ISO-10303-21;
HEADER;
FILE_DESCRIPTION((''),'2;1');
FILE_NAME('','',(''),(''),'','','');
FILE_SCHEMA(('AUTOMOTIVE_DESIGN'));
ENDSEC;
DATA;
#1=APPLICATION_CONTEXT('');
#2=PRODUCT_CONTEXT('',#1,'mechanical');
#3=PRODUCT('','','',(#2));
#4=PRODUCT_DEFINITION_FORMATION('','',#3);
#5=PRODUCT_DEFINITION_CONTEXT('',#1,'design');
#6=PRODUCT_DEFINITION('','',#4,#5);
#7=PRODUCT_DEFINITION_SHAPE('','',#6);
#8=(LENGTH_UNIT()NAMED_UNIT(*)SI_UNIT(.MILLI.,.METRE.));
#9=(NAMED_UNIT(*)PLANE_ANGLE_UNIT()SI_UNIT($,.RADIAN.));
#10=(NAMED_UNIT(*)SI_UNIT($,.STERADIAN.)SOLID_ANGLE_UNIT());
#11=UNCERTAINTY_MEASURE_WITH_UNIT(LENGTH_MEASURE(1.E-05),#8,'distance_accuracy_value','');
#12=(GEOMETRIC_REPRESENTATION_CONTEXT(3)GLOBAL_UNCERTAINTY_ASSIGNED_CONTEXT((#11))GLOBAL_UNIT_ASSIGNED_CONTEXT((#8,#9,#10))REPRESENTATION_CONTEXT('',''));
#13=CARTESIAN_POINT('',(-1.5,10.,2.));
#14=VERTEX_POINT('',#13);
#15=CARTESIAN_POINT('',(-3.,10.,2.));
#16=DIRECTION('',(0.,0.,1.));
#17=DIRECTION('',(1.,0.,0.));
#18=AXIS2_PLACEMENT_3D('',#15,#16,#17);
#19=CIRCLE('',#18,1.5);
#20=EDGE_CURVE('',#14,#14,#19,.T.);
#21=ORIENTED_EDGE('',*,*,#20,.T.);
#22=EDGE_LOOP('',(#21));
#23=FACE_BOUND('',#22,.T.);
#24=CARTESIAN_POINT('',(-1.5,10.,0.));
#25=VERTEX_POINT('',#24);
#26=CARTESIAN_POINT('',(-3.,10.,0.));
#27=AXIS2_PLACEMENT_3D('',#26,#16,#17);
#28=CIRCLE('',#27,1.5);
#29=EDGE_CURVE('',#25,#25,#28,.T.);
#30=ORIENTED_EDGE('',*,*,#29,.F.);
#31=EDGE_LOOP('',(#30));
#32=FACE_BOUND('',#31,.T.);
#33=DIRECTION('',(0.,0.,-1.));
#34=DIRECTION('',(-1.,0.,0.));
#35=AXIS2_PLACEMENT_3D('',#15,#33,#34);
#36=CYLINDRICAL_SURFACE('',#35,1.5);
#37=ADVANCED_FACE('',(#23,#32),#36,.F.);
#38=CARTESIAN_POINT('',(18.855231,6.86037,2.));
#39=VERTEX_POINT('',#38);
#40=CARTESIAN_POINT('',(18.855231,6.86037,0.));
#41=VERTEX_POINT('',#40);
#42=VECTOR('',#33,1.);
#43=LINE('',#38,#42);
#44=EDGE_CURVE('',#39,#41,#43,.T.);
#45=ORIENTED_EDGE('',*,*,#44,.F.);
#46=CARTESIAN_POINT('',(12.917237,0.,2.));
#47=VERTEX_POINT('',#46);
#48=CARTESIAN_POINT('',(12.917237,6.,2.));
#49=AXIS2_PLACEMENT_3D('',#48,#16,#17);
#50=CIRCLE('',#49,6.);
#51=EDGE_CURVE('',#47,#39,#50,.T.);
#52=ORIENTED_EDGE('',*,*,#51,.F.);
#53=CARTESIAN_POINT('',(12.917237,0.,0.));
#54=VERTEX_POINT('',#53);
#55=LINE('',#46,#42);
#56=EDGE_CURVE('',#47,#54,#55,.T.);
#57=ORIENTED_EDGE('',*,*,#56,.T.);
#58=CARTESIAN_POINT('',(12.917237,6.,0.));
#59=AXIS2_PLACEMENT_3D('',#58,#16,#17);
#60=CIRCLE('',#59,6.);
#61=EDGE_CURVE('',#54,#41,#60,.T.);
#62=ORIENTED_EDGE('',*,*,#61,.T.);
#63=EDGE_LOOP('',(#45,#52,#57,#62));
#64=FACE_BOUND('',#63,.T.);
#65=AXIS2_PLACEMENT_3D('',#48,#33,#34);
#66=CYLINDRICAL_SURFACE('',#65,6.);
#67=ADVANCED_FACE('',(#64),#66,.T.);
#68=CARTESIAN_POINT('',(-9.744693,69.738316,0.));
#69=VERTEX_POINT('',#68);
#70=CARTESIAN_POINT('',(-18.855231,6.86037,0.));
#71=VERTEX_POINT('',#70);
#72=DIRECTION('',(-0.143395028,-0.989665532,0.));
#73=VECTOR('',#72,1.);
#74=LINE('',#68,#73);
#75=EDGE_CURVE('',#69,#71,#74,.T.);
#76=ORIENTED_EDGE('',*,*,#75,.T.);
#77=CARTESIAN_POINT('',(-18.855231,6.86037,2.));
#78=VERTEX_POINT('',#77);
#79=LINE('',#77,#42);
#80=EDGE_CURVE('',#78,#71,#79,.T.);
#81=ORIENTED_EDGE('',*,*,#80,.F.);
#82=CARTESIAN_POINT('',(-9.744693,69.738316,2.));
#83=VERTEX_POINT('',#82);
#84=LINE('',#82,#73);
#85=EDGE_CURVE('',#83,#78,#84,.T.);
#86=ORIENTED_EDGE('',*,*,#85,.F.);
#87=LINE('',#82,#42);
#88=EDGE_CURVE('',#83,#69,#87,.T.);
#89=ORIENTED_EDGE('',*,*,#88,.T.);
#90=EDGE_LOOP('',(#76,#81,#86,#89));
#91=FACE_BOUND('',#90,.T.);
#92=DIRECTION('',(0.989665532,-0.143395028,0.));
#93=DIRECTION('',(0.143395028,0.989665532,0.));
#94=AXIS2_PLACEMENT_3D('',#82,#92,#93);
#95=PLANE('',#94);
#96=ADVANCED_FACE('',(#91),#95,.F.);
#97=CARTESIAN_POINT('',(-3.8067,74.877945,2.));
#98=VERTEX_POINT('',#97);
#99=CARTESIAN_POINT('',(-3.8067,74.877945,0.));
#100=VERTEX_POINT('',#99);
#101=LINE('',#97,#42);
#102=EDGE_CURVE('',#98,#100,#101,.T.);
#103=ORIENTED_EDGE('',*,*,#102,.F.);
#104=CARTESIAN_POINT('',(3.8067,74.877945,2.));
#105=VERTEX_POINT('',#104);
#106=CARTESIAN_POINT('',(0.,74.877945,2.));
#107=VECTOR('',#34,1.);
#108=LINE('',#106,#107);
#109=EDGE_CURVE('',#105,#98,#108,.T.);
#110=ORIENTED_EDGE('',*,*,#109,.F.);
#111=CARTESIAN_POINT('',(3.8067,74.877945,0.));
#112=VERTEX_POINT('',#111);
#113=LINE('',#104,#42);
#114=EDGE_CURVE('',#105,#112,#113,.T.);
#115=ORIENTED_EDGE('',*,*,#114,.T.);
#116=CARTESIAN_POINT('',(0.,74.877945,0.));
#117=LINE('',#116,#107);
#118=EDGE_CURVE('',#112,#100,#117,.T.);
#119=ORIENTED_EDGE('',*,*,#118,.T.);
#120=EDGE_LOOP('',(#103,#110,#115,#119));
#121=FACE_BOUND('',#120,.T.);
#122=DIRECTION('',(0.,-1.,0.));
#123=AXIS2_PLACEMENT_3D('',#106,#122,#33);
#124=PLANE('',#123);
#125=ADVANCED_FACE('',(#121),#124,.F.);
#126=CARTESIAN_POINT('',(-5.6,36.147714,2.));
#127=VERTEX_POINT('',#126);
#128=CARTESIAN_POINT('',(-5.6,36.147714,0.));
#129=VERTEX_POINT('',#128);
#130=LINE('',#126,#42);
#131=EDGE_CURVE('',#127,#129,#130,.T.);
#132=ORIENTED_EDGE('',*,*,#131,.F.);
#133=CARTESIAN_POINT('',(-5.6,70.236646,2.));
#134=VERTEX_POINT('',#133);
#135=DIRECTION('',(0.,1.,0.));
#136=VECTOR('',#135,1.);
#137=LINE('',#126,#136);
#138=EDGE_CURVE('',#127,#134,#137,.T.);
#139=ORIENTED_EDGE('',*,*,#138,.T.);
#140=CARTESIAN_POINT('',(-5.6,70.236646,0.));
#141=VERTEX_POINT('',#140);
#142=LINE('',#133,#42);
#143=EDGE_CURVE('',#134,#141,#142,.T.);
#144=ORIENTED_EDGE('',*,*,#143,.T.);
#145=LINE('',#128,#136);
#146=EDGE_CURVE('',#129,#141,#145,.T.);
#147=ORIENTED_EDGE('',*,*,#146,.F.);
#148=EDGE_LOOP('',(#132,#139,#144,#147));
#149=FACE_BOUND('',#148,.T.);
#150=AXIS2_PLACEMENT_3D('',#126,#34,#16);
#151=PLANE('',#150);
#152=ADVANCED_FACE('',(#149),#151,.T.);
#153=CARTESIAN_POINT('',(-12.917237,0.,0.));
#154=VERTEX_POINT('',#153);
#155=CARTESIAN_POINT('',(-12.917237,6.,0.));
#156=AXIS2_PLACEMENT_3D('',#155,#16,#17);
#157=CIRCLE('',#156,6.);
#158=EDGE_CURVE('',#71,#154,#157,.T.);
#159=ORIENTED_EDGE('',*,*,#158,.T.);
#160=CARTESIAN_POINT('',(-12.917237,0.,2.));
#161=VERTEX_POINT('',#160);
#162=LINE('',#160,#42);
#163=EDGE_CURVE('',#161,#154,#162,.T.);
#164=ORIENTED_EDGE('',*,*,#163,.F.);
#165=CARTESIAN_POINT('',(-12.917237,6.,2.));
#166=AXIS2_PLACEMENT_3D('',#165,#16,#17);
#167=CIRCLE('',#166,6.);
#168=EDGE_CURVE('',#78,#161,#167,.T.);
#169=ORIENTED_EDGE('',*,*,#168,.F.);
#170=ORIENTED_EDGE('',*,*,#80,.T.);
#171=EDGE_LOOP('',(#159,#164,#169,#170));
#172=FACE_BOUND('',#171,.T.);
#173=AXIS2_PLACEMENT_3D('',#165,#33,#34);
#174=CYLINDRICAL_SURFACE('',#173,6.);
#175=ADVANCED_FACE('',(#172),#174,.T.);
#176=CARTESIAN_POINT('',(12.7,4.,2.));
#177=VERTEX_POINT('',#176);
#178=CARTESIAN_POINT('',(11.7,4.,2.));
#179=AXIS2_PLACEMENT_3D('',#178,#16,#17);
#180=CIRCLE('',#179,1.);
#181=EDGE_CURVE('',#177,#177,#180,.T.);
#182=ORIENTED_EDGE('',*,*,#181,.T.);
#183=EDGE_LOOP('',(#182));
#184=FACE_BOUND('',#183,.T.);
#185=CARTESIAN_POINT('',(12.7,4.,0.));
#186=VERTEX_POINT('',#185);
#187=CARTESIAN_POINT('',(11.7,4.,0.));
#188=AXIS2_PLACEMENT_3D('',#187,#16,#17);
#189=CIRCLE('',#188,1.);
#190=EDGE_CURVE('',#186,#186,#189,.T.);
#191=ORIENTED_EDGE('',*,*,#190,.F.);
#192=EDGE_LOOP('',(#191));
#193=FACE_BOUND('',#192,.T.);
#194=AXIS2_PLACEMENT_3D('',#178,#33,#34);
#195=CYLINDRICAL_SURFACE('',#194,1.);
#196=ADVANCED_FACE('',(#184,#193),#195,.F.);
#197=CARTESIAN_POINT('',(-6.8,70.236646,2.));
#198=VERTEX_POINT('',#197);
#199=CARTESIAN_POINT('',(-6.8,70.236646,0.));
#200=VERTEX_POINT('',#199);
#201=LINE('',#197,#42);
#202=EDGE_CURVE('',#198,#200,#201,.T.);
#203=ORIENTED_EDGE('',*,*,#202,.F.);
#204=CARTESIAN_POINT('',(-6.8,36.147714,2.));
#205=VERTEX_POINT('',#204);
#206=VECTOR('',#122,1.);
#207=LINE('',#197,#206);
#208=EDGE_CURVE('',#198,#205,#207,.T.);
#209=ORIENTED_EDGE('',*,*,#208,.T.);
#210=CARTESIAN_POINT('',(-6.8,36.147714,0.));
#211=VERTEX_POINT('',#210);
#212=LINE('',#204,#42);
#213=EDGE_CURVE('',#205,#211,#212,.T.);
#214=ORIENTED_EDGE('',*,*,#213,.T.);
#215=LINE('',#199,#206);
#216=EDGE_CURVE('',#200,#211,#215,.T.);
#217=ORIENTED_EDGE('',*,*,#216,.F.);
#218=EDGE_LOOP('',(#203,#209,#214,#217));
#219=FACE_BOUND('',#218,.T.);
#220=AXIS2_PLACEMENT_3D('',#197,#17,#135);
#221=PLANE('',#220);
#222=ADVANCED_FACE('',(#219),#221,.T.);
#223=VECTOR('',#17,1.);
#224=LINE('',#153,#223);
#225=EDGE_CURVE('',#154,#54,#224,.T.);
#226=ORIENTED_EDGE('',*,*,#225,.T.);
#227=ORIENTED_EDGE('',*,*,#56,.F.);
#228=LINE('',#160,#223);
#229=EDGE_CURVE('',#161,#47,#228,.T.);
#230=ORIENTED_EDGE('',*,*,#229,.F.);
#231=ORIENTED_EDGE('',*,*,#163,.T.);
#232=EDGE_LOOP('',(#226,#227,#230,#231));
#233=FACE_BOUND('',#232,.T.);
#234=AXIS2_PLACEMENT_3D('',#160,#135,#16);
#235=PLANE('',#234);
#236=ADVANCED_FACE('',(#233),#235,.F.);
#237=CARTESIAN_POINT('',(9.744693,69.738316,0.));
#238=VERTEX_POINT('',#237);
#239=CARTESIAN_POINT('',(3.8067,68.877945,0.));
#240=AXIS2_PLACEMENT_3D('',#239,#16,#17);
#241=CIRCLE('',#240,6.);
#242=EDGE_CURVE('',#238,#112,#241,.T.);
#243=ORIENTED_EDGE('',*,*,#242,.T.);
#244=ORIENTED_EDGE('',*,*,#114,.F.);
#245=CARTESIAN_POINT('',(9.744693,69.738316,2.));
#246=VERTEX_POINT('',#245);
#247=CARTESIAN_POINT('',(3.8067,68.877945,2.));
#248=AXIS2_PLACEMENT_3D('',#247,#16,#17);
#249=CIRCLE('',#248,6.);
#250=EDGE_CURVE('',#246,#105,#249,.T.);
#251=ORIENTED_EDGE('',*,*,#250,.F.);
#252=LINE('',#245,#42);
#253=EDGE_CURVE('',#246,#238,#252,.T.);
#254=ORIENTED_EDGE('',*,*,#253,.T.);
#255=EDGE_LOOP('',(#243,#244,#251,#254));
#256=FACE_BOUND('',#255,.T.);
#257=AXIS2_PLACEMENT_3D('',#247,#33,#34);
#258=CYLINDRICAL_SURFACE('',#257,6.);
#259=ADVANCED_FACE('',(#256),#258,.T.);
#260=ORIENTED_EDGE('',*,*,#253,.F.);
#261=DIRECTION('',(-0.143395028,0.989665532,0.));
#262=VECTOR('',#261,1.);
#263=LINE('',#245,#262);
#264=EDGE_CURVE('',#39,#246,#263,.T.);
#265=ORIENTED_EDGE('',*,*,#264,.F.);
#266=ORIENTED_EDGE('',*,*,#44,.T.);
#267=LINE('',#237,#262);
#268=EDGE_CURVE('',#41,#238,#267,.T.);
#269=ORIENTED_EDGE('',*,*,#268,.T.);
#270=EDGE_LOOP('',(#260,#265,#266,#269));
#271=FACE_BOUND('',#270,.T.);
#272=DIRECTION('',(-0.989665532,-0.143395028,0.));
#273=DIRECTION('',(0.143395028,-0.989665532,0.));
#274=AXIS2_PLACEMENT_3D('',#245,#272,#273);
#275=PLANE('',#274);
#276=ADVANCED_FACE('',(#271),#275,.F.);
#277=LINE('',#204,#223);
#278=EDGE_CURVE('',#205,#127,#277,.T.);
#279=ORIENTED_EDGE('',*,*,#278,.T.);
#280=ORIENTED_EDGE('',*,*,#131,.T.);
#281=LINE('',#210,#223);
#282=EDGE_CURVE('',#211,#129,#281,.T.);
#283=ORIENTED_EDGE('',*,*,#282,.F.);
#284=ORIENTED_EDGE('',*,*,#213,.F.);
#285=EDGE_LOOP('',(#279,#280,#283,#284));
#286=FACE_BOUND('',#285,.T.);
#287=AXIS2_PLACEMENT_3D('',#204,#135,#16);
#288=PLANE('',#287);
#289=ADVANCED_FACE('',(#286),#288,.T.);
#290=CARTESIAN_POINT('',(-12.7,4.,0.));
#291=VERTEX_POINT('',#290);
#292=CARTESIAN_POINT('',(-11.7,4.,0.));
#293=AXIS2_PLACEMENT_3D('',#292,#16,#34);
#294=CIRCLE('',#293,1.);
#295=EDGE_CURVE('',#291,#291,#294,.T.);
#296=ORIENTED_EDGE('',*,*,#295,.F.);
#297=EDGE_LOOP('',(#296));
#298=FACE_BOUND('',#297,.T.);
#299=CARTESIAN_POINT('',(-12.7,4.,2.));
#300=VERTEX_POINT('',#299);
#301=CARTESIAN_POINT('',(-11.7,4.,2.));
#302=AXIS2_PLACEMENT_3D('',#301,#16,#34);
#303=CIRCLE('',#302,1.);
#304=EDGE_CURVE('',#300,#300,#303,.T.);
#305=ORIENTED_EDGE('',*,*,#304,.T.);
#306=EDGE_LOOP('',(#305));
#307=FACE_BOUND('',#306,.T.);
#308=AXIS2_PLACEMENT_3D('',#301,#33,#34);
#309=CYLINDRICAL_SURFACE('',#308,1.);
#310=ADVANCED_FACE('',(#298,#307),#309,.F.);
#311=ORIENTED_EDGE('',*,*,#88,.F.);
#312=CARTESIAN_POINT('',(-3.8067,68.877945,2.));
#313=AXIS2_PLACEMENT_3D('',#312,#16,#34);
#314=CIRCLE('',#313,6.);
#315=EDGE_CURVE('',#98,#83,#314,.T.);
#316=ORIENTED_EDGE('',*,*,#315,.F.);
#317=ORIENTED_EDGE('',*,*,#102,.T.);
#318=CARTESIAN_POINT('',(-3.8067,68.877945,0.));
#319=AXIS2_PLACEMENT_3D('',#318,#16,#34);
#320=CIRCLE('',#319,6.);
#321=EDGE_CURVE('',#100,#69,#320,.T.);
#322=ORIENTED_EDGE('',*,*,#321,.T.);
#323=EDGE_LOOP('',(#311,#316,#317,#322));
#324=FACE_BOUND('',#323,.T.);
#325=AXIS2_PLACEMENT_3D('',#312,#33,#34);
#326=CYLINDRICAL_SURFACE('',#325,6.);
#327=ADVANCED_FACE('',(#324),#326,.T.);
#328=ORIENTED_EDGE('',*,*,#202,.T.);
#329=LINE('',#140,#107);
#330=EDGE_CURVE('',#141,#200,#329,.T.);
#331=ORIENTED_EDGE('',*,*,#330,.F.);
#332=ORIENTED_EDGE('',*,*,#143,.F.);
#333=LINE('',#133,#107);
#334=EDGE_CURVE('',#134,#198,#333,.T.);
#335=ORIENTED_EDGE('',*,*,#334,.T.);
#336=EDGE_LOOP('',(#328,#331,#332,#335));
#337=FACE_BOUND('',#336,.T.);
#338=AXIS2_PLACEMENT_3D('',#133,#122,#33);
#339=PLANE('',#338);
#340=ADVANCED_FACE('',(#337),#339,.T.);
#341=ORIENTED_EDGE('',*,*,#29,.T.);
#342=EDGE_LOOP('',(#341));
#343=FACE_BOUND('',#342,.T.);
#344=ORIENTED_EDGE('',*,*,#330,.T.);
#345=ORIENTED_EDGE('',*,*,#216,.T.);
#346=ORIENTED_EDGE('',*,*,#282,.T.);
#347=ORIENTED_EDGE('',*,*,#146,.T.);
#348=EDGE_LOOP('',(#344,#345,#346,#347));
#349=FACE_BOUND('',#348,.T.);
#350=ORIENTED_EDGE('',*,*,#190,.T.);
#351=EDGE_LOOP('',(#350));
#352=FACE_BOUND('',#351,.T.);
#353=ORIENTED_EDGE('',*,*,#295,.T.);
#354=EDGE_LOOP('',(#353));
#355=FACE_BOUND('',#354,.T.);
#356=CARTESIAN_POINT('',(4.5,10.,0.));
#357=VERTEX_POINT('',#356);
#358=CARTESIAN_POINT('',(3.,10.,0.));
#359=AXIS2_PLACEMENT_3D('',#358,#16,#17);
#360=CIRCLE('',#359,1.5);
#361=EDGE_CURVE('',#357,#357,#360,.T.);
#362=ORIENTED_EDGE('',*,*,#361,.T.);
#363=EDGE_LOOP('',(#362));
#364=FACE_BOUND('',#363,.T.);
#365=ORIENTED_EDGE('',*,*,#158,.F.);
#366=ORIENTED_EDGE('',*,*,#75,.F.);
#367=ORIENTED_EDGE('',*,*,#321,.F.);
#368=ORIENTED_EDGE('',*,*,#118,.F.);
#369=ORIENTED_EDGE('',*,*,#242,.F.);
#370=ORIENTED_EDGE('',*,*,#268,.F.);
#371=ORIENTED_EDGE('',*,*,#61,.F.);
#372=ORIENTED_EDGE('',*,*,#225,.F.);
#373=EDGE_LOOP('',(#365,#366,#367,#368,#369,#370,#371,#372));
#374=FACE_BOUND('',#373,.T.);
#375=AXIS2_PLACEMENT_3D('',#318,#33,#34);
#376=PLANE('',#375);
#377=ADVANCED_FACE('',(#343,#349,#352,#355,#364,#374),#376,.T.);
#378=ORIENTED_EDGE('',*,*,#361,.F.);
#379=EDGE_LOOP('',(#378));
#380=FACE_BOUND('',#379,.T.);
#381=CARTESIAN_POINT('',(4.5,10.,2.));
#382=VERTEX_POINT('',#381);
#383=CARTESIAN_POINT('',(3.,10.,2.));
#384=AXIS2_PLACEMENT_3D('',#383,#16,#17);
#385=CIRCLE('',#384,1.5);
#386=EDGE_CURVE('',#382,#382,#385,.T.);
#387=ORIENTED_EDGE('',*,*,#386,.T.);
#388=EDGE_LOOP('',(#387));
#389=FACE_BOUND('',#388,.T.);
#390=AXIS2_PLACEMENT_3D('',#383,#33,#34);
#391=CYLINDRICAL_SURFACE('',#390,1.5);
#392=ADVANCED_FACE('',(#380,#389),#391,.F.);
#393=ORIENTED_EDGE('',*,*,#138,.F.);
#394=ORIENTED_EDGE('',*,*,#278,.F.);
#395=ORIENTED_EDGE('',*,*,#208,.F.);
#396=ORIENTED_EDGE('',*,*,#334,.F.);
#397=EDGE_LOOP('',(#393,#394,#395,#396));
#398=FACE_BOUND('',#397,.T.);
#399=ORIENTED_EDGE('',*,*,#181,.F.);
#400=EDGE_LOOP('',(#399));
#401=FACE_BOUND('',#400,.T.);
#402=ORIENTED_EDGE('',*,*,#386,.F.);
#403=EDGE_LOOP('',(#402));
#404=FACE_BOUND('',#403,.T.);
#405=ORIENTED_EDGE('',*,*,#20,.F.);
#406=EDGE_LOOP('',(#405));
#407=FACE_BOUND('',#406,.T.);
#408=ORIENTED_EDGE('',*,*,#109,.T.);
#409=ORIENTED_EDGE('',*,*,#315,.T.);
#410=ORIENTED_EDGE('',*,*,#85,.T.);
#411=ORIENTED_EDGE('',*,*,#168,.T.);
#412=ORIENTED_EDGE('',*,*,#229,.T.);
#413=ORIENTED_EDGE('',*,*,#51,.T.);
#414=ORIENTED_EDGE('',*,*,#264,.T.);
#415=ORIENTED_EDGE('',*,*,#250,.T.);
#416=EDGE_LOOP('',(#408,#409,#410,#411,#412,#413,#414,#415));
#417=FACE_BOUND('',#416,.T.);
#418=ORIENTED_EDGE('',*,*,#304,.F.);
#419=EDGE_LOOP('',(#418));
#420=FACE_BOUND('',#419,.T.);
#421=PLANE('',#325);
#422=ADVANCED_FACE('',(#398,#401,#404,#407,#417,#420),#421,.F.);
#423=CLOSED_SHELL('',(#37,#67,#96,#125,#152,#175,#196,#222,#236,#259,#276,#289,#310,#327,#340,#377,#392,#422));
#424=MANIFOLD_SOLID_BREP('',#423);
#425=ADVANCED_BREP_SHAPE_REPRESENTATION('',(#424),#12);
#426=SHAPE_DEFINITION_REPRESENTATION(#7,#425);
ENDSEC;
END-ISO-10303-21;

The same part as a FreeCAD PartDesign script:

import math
import FreeCAD as App
import Part
import Sketcher

V = App.Vector

doc = App.newDocument("Part")
body = doc.addObject("PartDesign::Body", "Body")

sketch1 = body.newObject("Sketcher::SketchObject", "Sketch")
sketch1.AttachmentSupport = (doc.getObject("XY_Plane"), [""])
sketch1.MapMode = "FlatFace"
sketch1.addGeometry(Part.LineSegment(V(-12.917237, 0, 0), V(12.917237, 0, 0)), False)
sketch1.addGeometry(Part.ArcOfCircle(Part.Circle(V(12.917237, 6, 0), V(0, 0, 1), 6), math.radians(-90), math.radians(8.24435)), False)
sketch1.addGeometry(Part.LineSegment(V(18.855231, 6.86037, 0), V(9.744693, 69.738316, 0)), False)
sketch1.addGeometry(Part.ArcOfCircle(Part.Circle(V(3.8067, 68.877945, 0), V(0, 0, 1), 6), math.radians(8.24435), math.radians(90)), False)
sketch1.addGeometry(Part.LineSegment(V(3.8067, 74.877945, 0), V(-3.8067, 74.877945, 0)), False)
sketch1.addGeometry(Part.ArcOfCircle(Part.Circle(V(-3.8067, 68.877945, 0), V(0, 0, 1), 6), math.radians(90), math.radians(171.75565)), False)
sketch1.addGeometry(Part.LineSegment(V(-9.744693, 69.738316, 0), V(-18.855231, 6.86037, 0)), False)
sketch1.addGeometry(Part.ArcOfCircle(Part.Circle(V(-12.917237, 6, 0), V(0, 0, 1), 6), math.radians(171.75565), math.radians(270)), False)
sketch1.addGeometry(Part.Circle(V(-11.7, 4, 0), V(0, 0, 1), 1), False)
sketch1.addGeometry(Part.Circle(V(-3, 10, 0), V(0, 0, 1), 1.5), False)
sketch1.addGeometry(Part.Circle(V(3, 10, 0), V(0, 0, 1), 1.5), False)
sketch1.addGeometry(Part.Circle(V(11.7, 4, 0), V(0, 0, 1), 1), False)
sketch1.addGeometry(Part.LineSegment(V(-5.6, 36.147714, 0), V(-6.8, 36.147714, 0)), False)
sketch1.addGeometry(Part.LineSegment(V(-6.8, 36.147714, 0), V(-6.8, 70.236646, 0)), False)
sketch1.addGeometry(Part.LineSegment(V(-6.8, 70.236646, 0), V(-5.6, 70.236646, 0)), False)
sketch1.addGeometry(Part.LineSegment(V(-5.6, 70.236646, 0), V(-5.6, 36.147714, 0)), False)
sketch1.addConstraint(Sketcher.Constraint("Tangent", 0, 2, 1, 1))
sketch1.addConstraint(Sketcher.Constraint("Tangent", 1, 2, 2, 1))
sketch1.addConstraint(Sketcher.Constraint("Tangent", 2, 2, 3, 1))
sketch1.addConstraint(Sketcher.Constraint("Tangent", 3, 2, 4, 1))
sketch1.addConstraint(Sketcher.Constraint("Tangent", 4, 2, 5, 1))
sketch1.addConstraint(Sketcher.Constraint("Tangent", 5, 2, 6, 1))
sketch1.addConstraint(Sketcher.Constraint("Tangent", 6, 2, 7, 1))
sketch1.addConstraint(Sketcher.Constraint("Tangent", 7, 2, 0, 1))
sketch1.addConstraint(Sketcher.Constraint("Coincident", 12, 2, 13, 1))
sketch1.addConstraint(Sketcher.Constraint("Coincident", 13, 2, 14, 1))
sketch1.addConstraint(Sketcher.Constraint("Coincident", 14, 2, 15, 1))
sketch1.addConstraint(Sketcher.Constraint("Coincident", 15, 2, 12, 1))
sketch1.addConstraint(Sketcher.Constraint("Horizontal", 0))
sketch1.addConstraint(Sketcher.Constraint("Horizontal", 4))
sketch1.addConstraint(Sketcher.Constraint("Horizontal", 12))
sketch1.addConstraint(Sketcher.Constraint("Vertical", 13))
sketch1.addConstraint(Sketcher.Constraint("Horizontal", 14))
sketch1.addConstraint(Sketcher.Constraint("Vertical", 15))
sketch1.addConstraint(Sketcher.Constraint("Equal", 1, 3))
sketch1.addConstraint(Sketcher.Constraint("Equal", 3, 5))
sketch1.addConstraint(Sketcher.Constraint("Equal", 5, 7))
sketch1.addConstraint(Sketcher.Constraint("Equal", 9, 10))
sketch1.addConstraint(Sketcher.Constraint("Equal", 8, 11))
sketch1.addConstraint(Sketcher.Constraint("Symmetric", 0, 2, 7, 2, -1, 1))
sketch1.addConstraint(Sketcher.Constraint("Symmetric", 9, 3, 10, 3, -2))
sketch1.addConstraint(Sketcher.Constraint("Symmetric", 8, 3, 11, 3, -2))
sketch1.addConstraint(Sketcher.Constraint("Horizontal", 2, 2, 5, 2))
sketch1.addConstraint(Sketcher.Constraint("Diameter", 8, 2.0))
sketch1.addConstraint(Sketcher.Constraint("Diameter", 9, 3.0))
sketch1.addConstraint(Sketcher.Constraint("Radius", 1, 6.0))
sketch1.addConstraint(Sketcher.Constraint("DistanceX", 12, 2, 12, 1, 1.2))
sketch1.addConstraint(Sketcher.Constraint("DistanceY", -1, 1, 8, 3, 4.0))
sketch1.addConstraint(Sketcher.Constraint("DistanceX", 9, 3, -1, 1, 3.0))
sketch1.addConstraint(Sketcher.Constraint("DistanceY", -1, 1, 9, 3, 10.0))
sketch1.addConstraint(Sketcher.Constraint("DistanceX", 8, 3, -1, 1, 11.7))
sketch1.addConstraint(Sketcher.Constraint("DistanceX", 12, 2, -1, 1, 6.8))
sketch1.addConstraint(Sketcher.Constraint("DistanceX", 4, 2, 4, 1, 7.6134))
sketch1.addConstraint(Sketcher.Constraint("DistanceY", 13, 1, 13, 2, 34.088932))
sketch1.addConstraint(Sketcher.Constraint("DistanceY", 5, 3, 13, 2, 1.3587))
sketch1.addConstraint(Sketcher.Constraint("Distance", 2, 63.534541))
sketch1.addConstraint(Sketcher.Constraint("DistanceX", 0, 1, 0, 2, 25.834475))
pad1 = body.newObject("PartDesign::Pad", "Pad")
pad1.Profile = sketch1
pad1.Length = 2

doc.recompute()
